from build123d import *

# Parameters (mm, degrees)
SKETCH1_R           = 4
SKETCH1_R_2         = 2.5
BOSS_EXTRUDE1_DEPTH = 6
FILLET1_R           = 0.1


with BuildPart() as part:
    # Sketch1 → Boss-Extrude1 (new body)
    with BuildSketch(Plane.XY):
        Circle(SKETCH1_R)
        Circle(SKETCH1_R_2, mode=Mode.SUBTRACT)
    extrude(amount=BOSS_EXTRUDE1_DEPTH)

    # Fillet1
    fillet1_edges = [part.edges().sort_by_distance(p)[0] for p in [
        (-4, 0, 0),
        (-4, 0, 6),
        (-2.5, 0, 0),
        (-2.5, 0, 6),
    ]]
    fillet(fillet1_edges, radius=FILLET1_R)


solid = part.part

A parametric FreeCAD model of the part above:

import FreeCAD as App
import Part
import Sketcher
Q = App.Units.Quantity


def edges_at(feature, points):
    """Names of the edges that pass closest to the given points."""
    edges = feature.Shape.Edges
    near = lambda p: min(range(len(edges)), key=lambda i: edges[i].distToShape(Part.Vertex(*p))[0])
    return sorted({f"Edge{near(p) + 1}" for p in points})

doc = App.newDocument("Part")
params = doc.addObject("Spreadsheet::Sheet", "Params")
for row, (alias, value) in enumerate([
    ("sketch1_diameter", "8 mm"),
    ("sketch1_diameter2", "5 mm"),
    ("pad1_length", "6 mm"),
    ("fillet_radius", "0.1 mm"),
], start=1):
    params.set(f"A{row}", alias)
    params.set(f"B{row}", "=" + value)
    params.setAlias(f"B{row}", alias)

body = doc.addObject("PartDesign::Body", "Body")

# Sketch on XY plane
sketch1 = body.newObject("Sketcher::SketchObject", "Sketch")
sketch1.AttachmentSupport = (doc.getObject("XY_Plane"), [""])
sketch1.MapMode = "FlatFace"
sketch1.addGeometry([
    Part.Circle(App.Vector(0, 0, 0), App.Vector(0, 0, 1), 4),
    Part.Circle(App.Vector(0, 0, 0), App.Vector(0, 0, 1), 2.5),
], False)
sketch1.addConstraint([
    Sketcher.Constraint("Coincident", 0, 3, -1, 1),
    Sketcher.Constraint("Coincident", 1, 3, -1, 1),
    Sketcher.Constraint("Diameter", 0, Q("8 mm")),
    Sketcher.Constraint("Diameter", 1, Q("5 mm")),
])
sketch1.setExpression("Constraints[2]", "Params.sketch1_diameter")
sketch1.setExpression("Constraints[3]", "Params.sketch1_diameter2")
pad1 = body.newObject("PartDesign::Pad", "Pad")
pad1.Profile = sketch1
pad1.setExpression("Length", "Params.pad1_length")
doc.recompute()

fillet = body.newObject("PartDesign::Fillet", "Fillet")
fillet.Base = (pad1, edges_at(pad1, [
    (-4, 0, 0),
    (-4, 0, 6),
    (-2.5, 0, 0),
    (-2.5, 0, 6),
]))
fillet.setExpression("Radius", "Params.fillet_radius")

doc.recompute()
